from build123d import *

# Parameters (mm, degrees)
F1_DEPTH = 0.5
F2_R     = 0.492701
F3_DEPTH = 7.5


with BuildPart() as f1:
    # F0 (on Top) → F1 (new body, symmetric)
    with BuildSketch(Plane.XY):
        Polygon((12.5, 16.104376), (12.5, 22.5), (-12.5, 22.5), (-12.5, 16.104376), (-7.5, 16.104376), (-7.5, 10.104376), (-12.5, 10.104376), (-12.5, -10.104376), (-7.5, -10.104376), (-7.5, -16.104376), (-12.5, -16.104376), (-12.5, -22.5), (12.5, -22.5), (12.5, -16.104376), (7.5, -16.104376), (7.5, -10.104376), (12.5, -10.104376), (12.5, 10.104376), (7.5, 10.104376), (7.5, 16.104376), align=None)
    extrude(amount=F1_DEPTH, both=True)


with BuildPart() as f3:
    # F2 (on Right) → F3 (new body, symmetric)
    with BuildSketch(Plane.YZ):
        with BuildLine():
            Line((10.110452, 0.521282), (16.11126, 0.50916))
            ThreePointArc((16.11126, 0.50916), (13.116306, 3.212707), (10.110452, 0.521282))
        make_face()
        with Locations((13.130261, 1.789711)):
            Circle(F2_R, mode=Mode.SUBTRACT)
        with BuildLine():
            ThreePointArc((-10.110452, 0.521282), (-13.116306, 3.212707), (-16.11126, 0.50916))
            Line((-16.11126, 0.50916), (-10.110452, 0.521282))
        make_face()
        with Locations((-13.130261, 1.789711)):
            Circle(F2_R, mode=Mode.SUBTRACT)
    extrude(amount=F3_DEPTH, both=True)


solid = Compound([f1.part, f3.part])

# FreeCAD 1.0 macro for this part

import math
import FreeCAD as App
import Part
import Sketcher
from FreeCAD import Vector
Q = App.Units.Quantity

doc = App.newDocument("Part")
body = doc.addObject("PartDesign::Body", "Body")

sketch1 = body.newObject("Sketcher::SketchObject", "Sketch")
sketch1.AttachmentSupport = (doc.getObject("XY_Plane"), [""])
sketch1.MapMode = "FlatFace"
sketch1.addGeometry(Part.LineSegment(Vector(12, 16, 0), Vector(12, 22, 0)), False)
sketch1.addGeometry(Part.LineSegment(Vector(12, 22, 0), Vector(-12, 22, 0)), False)
sketch1.addGeometry(Part.LineSegment(Vector(-12, 22, 0), Vector(-12, 16, 0)), False)
sketch1.addGeometry(Part.LineSegment(Vector(-12, 16, 0), Vector(-8, 16, 0)), False)
sketch1.addGeometry(Part.LineSegment(Vector(-8, 16, 0), Vector(-8, 10, 0)), False)
sketch1.addGeometry(Part.LineSegment(Vector(-8, 10, 0), Vector(-12, 10, 0)), False)
sketch1.addGeometry(Part.LineSegment(Vector(-12, 10, 0), Vector(-12, -10, 0)), False)
sketch1.addGeometry(Part.LineSegment(Vector(-12, -10, 0), Vector(-8, -10, 0)), False)
sketch1.addGeometry(Part.LineSegment(Vector(-8, -10, 0), Vector(-8, -16, 0)), False)
sketch1.addGeometry(Part.LineSegment(Vector(-8, -16, 0), Vector(-12, -16, 0)), False)
sketch1.addGeometry(Part.LineSegment(Vector(-12, -16, 0), Vector(-12, -22, 0)), False)
sketch1.addGeometry(Part.LineSegment(Vector(-12, -22, 0), Vector(12, -22, 0)), False)
sketch1.addGeometry(Part.LineSegment(Vector(12, -22, 0), Vector(12, -16, 0)), False)
sketch1.addGeometry(Part.LineSegment(Vector(12, -16, 0), Vector(8, -16, 0)), False)
sketch1.addGeometry(Part.LineSegment(Vector(8, -16, 0), Vector(8, -10, 0)), False)
sketch1.addGeometry(Part.LineSegment(Vector(8, -10, 0), Vector(12, -10, 0)), False)
sketch1.addGeometry(Part.LineSegment(Vector(12, -10, 0), Vector(12, 10, 0)), False)
sketch1.addGeometry(Part.LineSegment(Vector(12, 10, 0), Vector(8, 10, 0)), False)
sketch1.addGeometry(Part.LineSegment(Vector(8, 10, 0), Vector(8, 16, 0)), False)
sketch1.addGeometry(Part.LineSegment(Vector(8, 16, 0), Vector(12, 16, 0)), False)
sketch1.addConstraint(Sketcher.Constraint("Coincident", 0, 2, 1, 1))
sketch1.addConstraint(Sketcher.Constraint("Coincident", 1, 2, 2, 1))
sketch1.addConstraint(Sketcher.Constraint("Coincident", 2, 2, 3, 1))
sketch1.addConstraint(Sketcher.Constraint("Coincident", 3, 2, 4, 1))
sketch1.addConstraint(Sketcher.Constraint("Coincident", 4, 2, 5, 1))
sketch1.addConstraint(Sketcher.Constraint("Coincident", 5, 2, 6, 1))
sketch1.addConstraint(Sketcher.Constraint("Coincident", 6, 2, 7, 1))
sketch1.addConstraint(Sketcher.Constraint("Coincident", 7, 2, 8, 1))
sketch1.addConstraint(Sketcher.Constraint("Coincident", 8, 2, 9, 1))
sketch1.addConstraint(Sketcher.Constraint("Coincident", 9, 2, 10, 1))
sketch1.addConstraint(Sketcher.Constraint("Coincident", 10, 2, 11, 1))
sketch1.addConstraint(Sketcher.Constraint("Coincident", 11, 2, 12, 1))
sketch1.addConstraint(Sketcher.Constraint("Coincident", 12, 2, 13, 1))
sketch1.addConstraint(Sketcher.Constraint("Coincident", 13, 2, 14, 1))
sketch1.addConstraint(Sketcher.Constraint("Coincident", 14, 2, 15, 1))
sketch1.addConstraint(Sketcher.Constraint("Coincident", 15, 2, 16, 1))
sketch1.addConstraint(Sketcher.Constraint("Coincident", 16, 2, 17, 1))
sketch1.addConstraint(Sketcher.Constraint("Coincident", 17, 2, 18, 1))
sketch1.addConstraint(Sketcher.Constraint("Coincident", 18, 2, 19, 1))
sketch1.addConstraint(Sketcher.Constraint("Coincident", 19, 2, 0, 1))
sketch1.addConstraint(Sketcher.Constraint("Vertical", 0))
sketch1.addConstraint(Sketcher.Constraint("Horizontal", 1))
sketch1.addConstraint(Sketcher.Constraint("Vertical", 2))
sketch1.addConstraint(Sketcher.Constraint("Horizontal", 3))
sketch1.addConstraint(Sketcher.Constraint("Vertical", 4))
sketch1.addConstraint(Sketcher.Constraint("Horizontal", 5))
sketch1.addConstraint(Sketcher.Constraint("Vertical", 6))
sketch1.addConstraint(Sketcher.Constraint("Horizontal", 7))
sketch1.addConstraint(Sketcher.Constraint("Vertical", 8))
sketch1.addConstraint(Sketcher.Constraint("Horizontal", 9))
sketch1.addConstraint(Sketcher.Constraint("Vertical", 10))
sketch1.addConstraint(Sketcher.Constraint("Horizontal", 11))
sketch1.addConstraint(Sketcher.Constraint("Vertical", 12))
sketch1.addConstraint(Sketcher.Constraint("Horizontal", 13))
sketch1.addConstraint(Sketcher.Constraint("Vertical", 14))
sketch1.addConstraint(Sketcher.Constraint("Horizontal", 15))
sketch1.addConstraint(Sketcher.Constraint("Vertical", 16))
sketch1.addConstraint(Sketcher.Constraint("Horizontal", 17))
sketch1.addConstraint(Sketcher.Constraint("Vertical", 18))
sketch1.addConstraint(Sketcher.Constraint("Horizontal", 19))
sketch1.addConstraint(Sketcher.Constraint("Symmetric", 0, 2, 10, 2, -1, 1))
sketch1.addConstraint(Sketcher.Constraint("Symmetric", 2, 2, 12, 2, -1, 1))
sketch1.addConstraint(Sketcher.Constraint("Symmetric", 4, 2, 14, 2, -1, 1))
sketch1.addConstraint(Sketcher.Constraint("Symmetric", 6, 2, 16, 2, -1, 1))
sketch1.addConstraint(Sketcher.Constraint("Symmetric", 8, 2, 18, 2, -1, 1))
sketch1.addConstraint(Sketcher.Constraint("Symmetric", 9, 2, 12, 2, -2))
sketch1.addConstraint(Sketcher.Constraint("Symmetric", 7, 2, 14, 2, -2))
sketch1.addConstraint(Sketcher.Constraint("Vertical", 2, 2, 5, 2))
sketch1.addConstraint(Sketcher.Constraint("DistanceX", 1, 2, 1, 1, Q("25 mm")))
sketch1.addConstraint(Sketcher.Constraint("DistanceX", 3, 1, 3, 2, Q("5 mm")))
sketch1.addConstraint(Sketcher.Constraint("DistanceY", 4, 2, 4, 1, Q("6 mm")))
sketch1.addConstraint(Sketcher.Constraint("DistanceY", -1, 1, 0, 2, Q("22.5 mm")))
sketch1.addConstraint(Sketcher.Constraint("DistanceY", 0, 1, 0, 2, Q("6.395624 mm")))
pad1 = body.newObject("PartDesign::Pad", "Pad")
pad1.Profile = sketch1
pad1.Length = 1
pad1.Midplane = True
body2 = doc.addObject("PartDesign::Body", "Body001")
body2.AllowCompound = True

sketch2 = body2.newObject("Sketcher::SketchObject", "Sketch001")
sketch2.AttachmentSupport = (doc.getObject("YZ_Plane001"), [""])
sketch2.MapMode = "FlatFace"
sketch2.addGeometry(Part.LineSegment(Vector(10.11, 0.52, 0), Vector(16.11, 0.51, 0)), False)
sketch2.addGeometry(Part.ArcOfCircle(Part.Circle(Vector(13.11, 0.2, 0), Vector(0, 0, 1), 3.02), math.radians(6), math.radians(174)), False)
sketch2.addGeometry(Part.Circle(Vector(13.13, 1.79, 0), Vector(0, 0, 1), 0.49), False)
sketch2.addGeometry(Part.ArcOfCircle(Part.Circle(Vector(-13.11, 0.2, 0), Vector(0, 0, 1), 3.02), math.radians(6), math.radians(174)), False)
sketch2.addGeometry(Part.LineSegment(Vector(-16.11, 0.51, 0), Vector(-10.11, 0.52, 0)), False)
sketch2.addGeometry(Part.Circle(Vector(-13.13, 1.79, 0), Vector(0, 0, 1), 0.49), False)
sketch2.addConstraint(Sketcher.Constraint("Coincident", 0, 1, 1, 2))
sketch2.addConstraint(Sketcher.Constraint("Coincident", 1, 1, 0, 2))
sketch2.addConstraint(Sketcher.Constraint("Coincident", 3, 1, 4, 2))
sketch2.addConstraint(Sketcher.Constraint("Coincident", 4, 1, 3, 2))
sketch2.addConstraint(Sketcher.Constraint("Equal", 1, 3))
sketch2.addConstraint(Sketcher.Constraint("Equal", 2, 5))
sketch2.addConstraint(Sketcher.Constraint("Symmetric", 1, 3, 3, 3, -2))
sketch2.addConstraint(Sketcher.Constraint("Symmetric", 2, 3, 5, 3, -2))
sketch2.addConstraint(Sketcher.Constraint("Horizontal", 0, 1, 3, 1))
sketch2.addConstraint(Sketcher.Constraint("Horizontal", 1, 1, 4, 1))
sketch2.addConstraint(Sketcher.Constraint("Diameter", 2, Q("0.985402 mm")))
sketch2.addConstraint(Sketcher.Constraint("Radius", 1, Q("3.017418 mm")))
sketch2.addConstraint(Sketcher.Constraint("DistanceX", 2, 3, 1, 1, Q("2.980999 mm")))
sketch2.addConstraint(Sketcher.Constraint("Distance", 0, Q("6.00082 mm")))
sketch2.addConstraint(Sketcher.Constraint("DistanceX", -1, 1, 1, 3, Q("13.11021 mm")))
sketch2.addConstraint(Sketcher.Constraint("DistanceX", -1, 1, 2, 3, Q("13.130261 mm")))
sketch2.addConstraint(Sketcher.Constraint("DistanceY", -1, 1, 2, 3, Q("1.789711 mm")))
sketch2.addConstraint(Sketcher.Constraint("DistanceY", -1, 1, 1, 1, Q("0.50916 mm")))
pad2 = body2.newObject("PartDesign::Pad", "Pad001")
pad2.Profile = sketch2
pad2.Length = 15
pad2.Midplane = True

doc.recompute()
